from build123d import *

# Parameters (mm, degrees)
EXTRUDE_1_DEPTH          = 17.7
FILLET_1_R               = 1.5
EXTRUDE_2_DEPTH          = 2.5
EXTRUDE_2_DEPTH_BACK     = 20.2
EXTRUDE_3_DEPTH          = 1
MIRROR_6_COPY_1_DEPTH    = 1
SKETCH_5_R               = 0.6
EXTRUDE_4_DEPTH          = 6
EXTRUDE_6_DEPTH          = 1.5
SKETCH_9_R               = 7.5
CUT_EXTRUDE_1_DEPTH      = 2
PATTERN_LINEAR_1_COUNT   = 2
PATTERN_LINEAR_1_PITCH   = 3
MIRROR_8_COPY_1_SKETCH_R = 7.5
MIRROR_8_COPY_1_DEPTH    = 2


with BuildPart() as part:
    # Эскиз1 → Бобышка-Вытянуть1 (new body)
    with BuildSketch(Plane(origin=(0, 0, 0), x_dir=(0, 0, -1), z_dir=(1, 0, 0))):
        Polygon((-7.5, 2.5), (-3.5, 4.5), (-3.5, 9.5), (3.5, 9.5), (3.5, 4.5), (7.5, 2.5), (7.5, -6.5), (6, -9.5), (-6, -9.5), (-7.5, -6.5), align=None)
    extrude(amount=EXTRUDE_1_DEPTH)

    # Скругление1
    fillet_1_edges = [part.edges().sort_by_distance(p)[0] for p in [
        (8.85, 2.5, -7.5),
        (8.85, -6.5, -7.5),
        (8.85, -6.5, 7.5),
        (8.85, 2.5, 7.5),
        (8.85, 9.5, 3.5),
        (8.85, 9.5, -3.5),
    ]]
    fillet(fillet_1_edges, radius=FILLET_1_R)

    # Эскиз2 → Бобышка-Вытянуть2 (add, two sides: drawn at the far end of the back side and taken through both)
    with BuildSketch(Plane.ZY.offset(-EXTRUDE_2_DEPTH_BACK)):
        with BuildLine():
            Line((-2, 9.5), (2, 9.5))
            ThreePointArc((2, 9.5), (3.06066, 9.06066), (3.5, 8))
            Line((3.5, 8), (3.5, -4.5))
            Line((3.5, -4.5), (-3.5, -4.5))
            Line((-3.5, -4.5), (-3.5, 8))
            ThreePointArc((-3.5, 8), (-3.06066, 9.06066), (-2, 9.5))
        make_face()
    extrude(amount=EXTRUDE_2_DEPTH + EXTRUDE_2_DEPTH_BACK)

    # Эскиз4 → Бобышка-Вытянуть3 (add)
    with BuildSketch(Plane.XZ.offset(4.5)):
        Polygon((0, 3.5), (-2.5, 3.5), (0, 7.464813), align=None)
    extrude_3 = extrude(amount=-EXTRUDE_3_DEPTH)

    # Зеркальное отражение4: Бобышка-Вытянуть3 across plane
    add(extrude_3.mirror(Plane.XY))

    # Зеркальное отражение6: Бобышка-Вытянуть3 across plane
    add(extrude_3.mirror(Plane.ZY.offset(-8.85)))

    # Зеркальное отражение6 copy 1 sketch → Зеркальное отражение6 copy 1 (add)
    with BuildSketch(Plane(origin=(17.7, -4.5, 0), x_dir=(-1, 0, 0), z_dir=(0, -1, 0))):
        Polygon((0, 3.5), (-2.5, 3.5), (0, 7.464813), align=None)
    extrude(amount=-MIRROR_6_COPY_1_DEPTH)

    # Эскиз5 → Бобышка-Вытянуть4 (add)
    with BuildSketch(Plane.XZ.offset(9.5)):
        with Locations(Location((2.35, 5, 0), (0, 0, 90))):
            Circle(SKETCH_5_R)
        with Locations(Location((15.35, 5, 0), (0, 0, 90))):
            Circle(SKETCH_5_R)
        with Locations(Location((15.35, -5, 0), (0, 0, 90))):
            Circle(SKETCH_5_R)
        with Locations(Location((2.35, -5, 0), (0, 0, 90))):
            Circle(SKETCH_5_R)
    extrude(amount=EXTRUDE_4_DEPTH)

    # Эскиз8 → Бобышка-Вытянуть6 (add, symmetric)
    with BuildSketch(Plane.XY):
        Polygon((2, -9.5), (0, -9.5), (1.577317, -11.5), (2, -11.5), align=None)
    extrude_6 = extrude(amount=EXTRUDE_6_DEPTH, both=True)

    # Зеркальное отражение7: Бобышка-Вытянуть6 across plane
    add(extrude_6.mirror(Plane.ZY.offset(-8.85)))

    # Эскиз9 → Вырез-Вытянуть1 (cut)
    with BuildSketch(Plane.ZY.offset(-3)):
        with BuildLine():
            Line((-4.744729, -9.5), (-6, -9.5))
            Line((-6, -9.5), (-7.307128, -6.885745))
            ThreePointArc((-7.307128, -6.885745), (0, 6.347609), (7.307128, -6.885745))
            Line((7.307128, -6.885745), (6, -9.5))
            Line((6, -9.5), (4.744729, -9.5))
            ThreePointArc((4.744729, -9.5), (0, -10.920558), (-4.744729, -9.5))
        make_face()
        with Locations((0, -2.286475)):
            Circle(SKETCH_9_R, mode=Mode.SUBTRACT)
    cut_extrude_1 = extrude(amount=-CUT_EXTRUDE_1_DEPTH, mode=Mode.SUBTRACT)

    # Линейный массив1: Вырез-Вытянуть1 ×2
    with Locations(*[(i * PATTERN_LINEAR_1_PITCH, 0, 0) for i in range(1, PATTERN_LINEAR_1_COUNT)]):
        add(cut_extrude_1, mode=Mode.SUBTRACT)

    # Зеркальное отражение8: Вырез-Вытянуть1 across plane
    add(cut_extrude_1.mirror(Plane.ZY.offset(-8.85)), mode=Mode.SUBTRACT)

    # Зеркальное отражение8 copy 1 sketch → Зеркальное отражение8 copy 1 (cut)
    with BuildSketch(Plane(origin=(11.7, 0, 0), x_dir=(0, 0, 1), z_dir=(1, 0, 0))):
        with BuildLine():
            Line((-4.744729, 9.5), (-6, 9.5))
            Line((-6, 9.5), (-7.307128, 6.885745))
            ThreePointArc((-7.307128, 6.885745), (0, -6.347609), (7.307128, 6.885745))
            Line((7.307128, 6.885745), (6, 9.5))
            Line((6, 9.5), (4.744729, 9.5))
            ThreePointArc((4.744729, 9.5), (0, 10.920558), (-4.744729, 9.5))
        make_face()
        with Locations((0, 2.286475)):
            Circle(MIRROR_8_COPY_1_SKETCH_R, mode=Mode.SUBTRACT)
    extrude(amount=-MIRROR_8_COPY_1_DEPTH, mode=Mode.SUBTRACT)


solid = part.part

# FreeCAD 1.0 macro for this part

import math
import FreeCAD as App
import Part
import Sketcher

V = App.Vector
Q = App.Units.Quantity


def edges_at(feature, points):
    """Names of the edges that pass closest to the given points."""
    edges = feature.Shape.Edges
    near = lambda p: min(range(len(edges)), key=lambda i: edges[i].distToShape(Part.Vertex(*p))[0])
    return sorted({f"Edge{near(p) + 1}" for p in points})


def add_polygon(sketch, points):
    """Adds a closed chain of lines whose ends are joined by coincident constraints."""
    first, n = sketch.GeometryCount, len(points)
    for a, b in zip(points, points[1:] + points[:1]):
        sketch.addGeometry(Part.LineSegment(App.Vector(*a, 0), App.Vector(*b, 0)), False)
    for i in range(n):
        sketch.addConstraint(Sketcher.Constraint("Coincident", first + i, 2, first + (i + 1) % n, 1))

doc = App.newDocument("Part")
body = doc.addObject("PartDesign::Body", "Body")

# Sketch on YZ plane
sketch1 = doc.addObject("Sketcher::SketchObject", "Sketch")
body.addObject(sketch1)
sketch1.AttachmentSupport = (doc.YZ_Plane, [""])
sketch1.MapMode = "FlatFace"
add_polygon(sketch1, [(4.5, 3.5), (2.5, 7.5), (-6.5, 7.5), (-9.5, 6), (-9.5, -6), (-6.5, -7.5), (2.5, -7.5), (4.5, -3.5), (9.5, -3.5), (9.5, 3.5)])  # lines 0-9
sketch1.addConstraint([
    Sketcher.Constraint("Horizontal", 1),
    Sketcher.Constraint("Vertical", 3),
    Sketcher.Constraint("Horizontal", 5),
    Sketcher.Constraint("Horizontal", 7),
    Sketcher.Constraint("Vertical", 8),
    Sketcher.Constraint("Horizontal", 9),
    Sketcher.Constraint("Symmetric", 1, 2, 4, 2, -1),
    Sketcher.Constraint("Symmetric", 6, 2, 9, 2, -1),
    Sketcher.Constraint("Perpendicular", 0, 2),
    Sketcher.Constraint("Perpendicular", 4, 6),
    Sketcher.Constraint("Vertical", 0, 2, 5, 2),
    Sketcher.Constraint("DistanceX", 1, 2, 1, 1, Q("9 mm")),
    Sketcher.Constraint("DistanceX", 7, 1, 7, 2, Q("5 mm")),
    Sketcher.Constraint("DistanceY", 3, 2, 3, 1, Q("12 mm")),
    Sketcher.Constraint("DistanceY", 8, 1, 8, 2, Q("7 mm")),
    Sketcher.Constraint("DistanceX", 2, 2, 1, 2, Q("3 mm")),
    Sketcher.Constraint("DistanceY", 4, 2, 1, 2, Q("15 mm")),
    Sketcher.Constraint("DistanceX", -1, 1, 0, 2, Q("2.5 mm")),
])
pad1 = doc.addObject("PartDesign::Pad", "Pad")
body.addObject(pad1)
pad1.Profile = sketch1
pad1.Length = 17.7
doc.recompute()

fillet = doc.addObject("PartDesign::Fillet", "Fillet")
body.addObject(fillet)
fillet.Base = (pad1, edges_at(pad1, [
    (8.85, 2.5, -7.5),
    (8.85, -6.5, -7.5),
    (8.85, -6.5, 7.5),
    (8.85, 2.5, 7.5),
    (8.85, 9.5, 3.5),
    (8.85, 9.5, -3.5),
]))
fillet.Radius = 1.5

# Sketch on YZ plane
sketch2 = doc.addObject("Sketcher::SketchObject", "Sketch001")
body.addObject(sketch2)
sketch2.AttachmentSupport = (doc.YZ_Plane, [""])
sketch2.MapMode = "FlatFace"
sketch2.addGeometry([
    Part.LineSegment(V(9.5, 2, 0), V(9.5, -2, 0)),  # 0
    Part.ArcOfCircle(Part.Circle(V(8, -2, 0), V(0, 0, 1), 1.5), math.radians(-90), math.radians(0)),  # 1
    Part.LineSegment(V(8, -3.5, 0), V(-4.5, -3.5, 0)),  # 2
    Part.LineSegment(V(-4.5, -3.5, 0), V(-4.5, 3.5, 0)),  # 3
    Part.LineSegment(V(-4.5, 3.5, 0), V(8, 3.5, 0)),  # 4
    Part.ArcOfCircle(Part.Circle(V(8, 2, 0), V(0, 0, 1), 1.5), math.radians(0), math.radians(90)),  # 5
], False)
sketch2.addConstraint([
    Sketcher.Constraint("Tangent", 0, 2, 1, 2),
    Sketcher.Constraint("Tangent", 1, 1, 2, 1),
    Sketcher.Constraint("Coincident", 2, 2, 3, 1),
    Sketcher.Constraint("Coincident", 3, 2, 4, 1),
    Sketcher.Constraint("Tangent", 4, 2, 5, 2),
    Sketcher.Constraint("Tangent", 5, 1, 0, 1),
    Sketcher.Constraint("Vertical", 0),
    Sketcher.Constraint("Horizontal", 2),
    Sketcher.Constraint("Vertical", 3),
    Sketcher.Constraint("Horizontal", 4),
    Sketcher.Constraint("Equal", 1, 5),
    Sketcher.Constraint("Radius", 1, Q("1.500001 mm")),
    Sketcher.Constraint("DistanceY", 0, 2, 0, 1, Q("4 mm")),
    Sketcher.Constraint("DistanceX", 2, 2, 2, 1, Q("12.5 mm")),
    Sketcher.Constraint("DistanceX", -1, 1, 1, 3, Q("7.999999 mm")),
    Sketcher.Constraint("DistanceY", 1, 3, -1, 1, Q("1.999999 mm")),
])
pad2 = doc.addObject("PartDesign::Pad", "Pad001")
body.addObject(pad2)
pad2.Profile = sketch2
pad2.Type = "TwoLengths"
pad2.Length = 2.5
pad2.Length2 = 20.2
pad2.Reversed = True

# Sketch on XZ plane
sketch3 = doc.addObject("Sketcher::SketchObject", "Sketch002")
body.addObject(sketch3)
sketch3.AttachmentSupport = (doc.XZ_Plane, [""])
sketch3.MapMode = "FlatFace"
sketch3.AttachmentOffset = App.Placement(V(0, 0, 4.5), App.Rotation())
add_polygon(sketch3, [(-2.5, 3.5), (0, 3.5), (0, 7.5)])  # lines 0-2
sketch3.addConstraint([
    Sketcher.Constraint("Horizontal", 0),
    Sketcher.Constraint("Vertical", 1),
    Sketcher.Constraint("PointOnObject", 0, 2, -2),
    Sketcher.Constraint("DistanceX", 0, 1, 0, 2, Q("2.5 mm")),
    Sketcher.Constraint("DistanceY", -1, 1, 0, 2, Q("3.5 mm")),
    Sketcher.Constraint("Distance", 2, Q("4.687189 mm")),
])
pad3 = doc.addObject("PartDesign::Pad", "Pad002")
body.addObject(pad3)
pad3.Profile = sketch3
pad3.Length = 1
pad3.Reversed = True
doc.recompute()

mirrored = doc.addObject("PartDesign::Mirrored", "Mirrored")
body.addObject(mirrored)
mirrored.Originals = [pad3]
mirrored.MirrorPlane = (doc.XY_Plane, [""])
body.Tip = mirrored
doc.recompute()

datumplane = doc.addObject("PartDesign::Plane", "DatumPlane")
body.addObject(datumplane)
datumplane.AttachmentSupport = (doc.YZ_Plane, [""])
datumplane.MapMode = "FlatFace"
datumplane.AttachmentOffset = App.Placement(V(0, 0, 8.85), App.Rotation())
mirrored2 = doc.addObject("PartDesign::Mirrored", "Mirrored001")
body.addObject(mirrored2)
mirrored2.Originals = [pad3]
mirrored2.MirrorPlane = (datumplane, [""])
body.Tip = mirrored2

# Sketch on XZ plane
sketch4 = doc.addObject("Sketcher::SketchObject", "Sketch003")
body.addObject(sketch4)
sketch4.AttachmentSupport = (doc.XZ_Plane, [""])
sketch4.MapMode = "FlatFace"
sketch4.AttachmentOffset = App.Placement(V(0, 0, 4.5), App.Rotation())
add_polygon(sketch4, [(20.2, -3.5), (17.7, -3.5), (17.7, -7.5)])  # lines 0-2
sketch4.addConstraint([
    Sketcher.Constraint("Horizontal", 0),
    Sketcher.Constraint("Vertical", 1),
    Sketcher.Constraint("DistanceX", 0, 2, 0, 1, Q("2.5 mm")),
    Sketcher.Constraint("DistanceX", -1, 1, 0, 2, Q("17.7 mm")),
    Sketcher.Constraint("DistanceY", 0, 2, -1, 1, Q("3.5 mm")),
    Sketcher.Constraint("Distance", 2, Q("4.687189 mm")),
])
pad4 = doc.addObject("PartDesign::Pad", "Pad003")
body.addObject(pad4)
pad4.Profile = sketch4
pad4.Length = 1
pad4.Reversed = True

# Sketch on XZ plane
sketch5 = doc.addObject("Sketcher::SketchObject", "Sketch004")
body.addObject(sketch5)
sketch5.AttachmentSupport = (doc.XZ_Plane, [""])
sketch5.MapMode = "FlatFace"
sketch5.AttachmentOffset = App.Placement(V(0, 0, 9.5), App.Rotation())
sketch5.addGeometry([
    Part.Circle(V(2.4, 5, 0), V(0, 0, 1), 0.6),
    Part.Circle(V(15.3, 5, 0), V(0, 0, 1), 0.6),
    Part.Circle(V(15.3, -5, 0), V(0, 0, 1), 0.6),
    Part.Circle(V(2.4, -5, 0), V(0, 0, 1), 0.6),
], False)
sketch5.addConstraint([
    Sketcher.Constraint("Equal", 0, 1),
    Sketcher.Constraint("Equal", 1, 2),
    Sketcher.Constraint("Equal", 2, 3),
    Sketcher.Constraint("Symmetric", 1, 3, 2, 3, -1),
    Sketcher.Constraint("Symmetric", 0, 3, 3, 3, -1),
    Sketcher.Constraint("Horizontal", 0, 3, 1, 3),
    Sketcher.Constraint("Diameter", 0, Q("1.2 mm")),
    Sketcher.Constraint("DistanceY", -1, 1, 0, 3, Q("5 mm")),
    Sketcher.Constraint("DistanceX", 0, 3, 1, 3, Q("13 mm")),
    Sketcher.Constraint("DistanceX", -1, 1, 0, 3, Q("2.35 mm")),
])
pad5 = doc.addObject("PartDesign::Pad", "Pad004")
body.addObject(pad5)
pad5.Profile = sketch5
pad5.Length = 6

# Sketch on XY plane
sketch6 = doc.addObject("Sketcher::SketchObject", "Sketch005")
body.addObject(sketch6)
sketch6.AttachmentSupport = (doc.XY_Plane, [""])
sketch6.MapMode = "FlatFace"
add_polygon(sketch6, [(2, -9.5), (0, -9.5), (1.58, -11.5), (2, -11.5)])  # lines 0-3
sketch6.addConstraint([
    Sketcher.Constraint("Horizontal", 0),
    Sketcher.Constraint("Horizontal", 2),
    Sketcher.Constraint("Vertical", 3),
    Sketcher.Constraint("PointOnObject", 0, 2, -2),
    Sketcher.Constraint("Equal", 0, 3),
    Sketcher.Constraint("DistanceX", 0, 2, 0, 1, Q("2 mm")),
    Sketcher.Constraint("DistanceY", 0, 2, -1, 1, Q("9.5 mm")),
    Sketcher.Constraint("Distance", 1, Q("2.547141 mm")),
])
pad6 = doc.addObject("PartDesign::Pad", "Pad005")
body.addObject(pad6)
pad6.Profile = sketch6
pad6.Length = 3
pad6.Midplane = True
doc.recompute()

datumplane2 = doc.addObject("PartDesign::Plane", "DatumPlane001")
body.addObject(datumplane2)
datumplane2.AttachmentSupport = (doc.YZ_Plane, [""])
datumplane2.MapMode = "FlatFace"
datumplane2.AttachmentOffset = App.Placement(V(0, 0, 8.85), App.Rotation())
mirrored3 = doc.addObject("PartDesign::Mirrored", "Mirrored002")
body.addObject(mirrored3)
mirrored3.Originals = [pad6]
mirrored3.MirrorPlane = (datumplane2, [""])
body.Tip = mirrored3

# Sketch on YZ plane
sketch7 = doc.addObject("Sketcher::SketchObject", "Sketch006")
body.addObject(sketch7)
sketch7.AttachmentSupport = (doc.YZ_Plane, [""])
sketch7.MapMode = "FlatFace"
sketch7.AttachmentOffset = App.Placement(V(0, 0, 3), App.Rotation())
sketch7.addGeometry([
    Part.LineSegment(V(-9.5, -6, 0), V(-9.5, -4.7, 0)),  # 0
    Part.ArcOfCircle(Part.Circle(V(-2.3, 0, 0), V(0, 0, 1), 8.6), math.radians(147), math.radians(213)),  # 1
    Part.LineSegment(V(-9.5, 4.7, 0), V(-9.5, 6, 0)),  # 2
    Part.LineSegment(V(-9.5, 6, 0), V(-6.9, 7.3, 0)),  # 3
    Part.ArcOfCircle(Part.Circle(V(-2.3, 0, 0), V(0, 0, 1), 8.6), math.radians(-122), math.radians(122)),  # 4
    Part.LineSegment(V(-6.9, -7.3, 0), V(-9.5, -6, 0)),  # 5
    Part.Circle(V(-2.3, 0, 0), V(0, 0, 1), 7.5),  # 6
], False)
sketch7.addConstraint([
    Sketcher.Constraint("Coincident", 0, 2, 1, 2),
    Sketcher.Constraint("Coincident", 1, 1, 2, 1),
    Sketcher.Constraint("Coincident", 2, 2, 3, 1),
    Sketcher.Constraint("Coincident", 3, 2, 4, 2),
    Sketcher.Constraint("Coincident", 4, 1, 5, 1),
    Sketcher.Constraint("Coincident", 5, 2, 0, 1),
    Sketcher.Constraint("Vertical", 0),
    Sketcher.Constraint("Vertical", 2),
    Sketcher.Constraint("Coincident", 4, 3, 1, 3),
    Sketcher.Constraint("Coincident", 6, 3, 1, 3),
    Sketcher.Constraint("Equal", 1, 4),
    Sketcher.Constraint("Symmetric", 0, 2, 1, 1, -1),
    Sketcher.Constraint("Vertical", 3, 2, 4, 1),
    Sketcher.Constraint("Equal", 0, 2),
    Sketcher.Constraint("Diameter", 6, Q("15 mm")),
    Sketcher.Constraint("DistanceY", -1, 1, 2, 2, Q("6 mm")),
    Sketcher.Constraint("DistanceX", 0, 2, -1, 1, Q("9.5 mm")),
    Sketcher.Constraint("Radius", 1, Q("8.634085 mm")),
    Sketcher.Constraint("DistanceY", 0, 1, 0, 2, Q("1.255271 mm")),
    Sketcher.Constraint("DistanceY", 1, 1, 3, 2, Q("2.562399 mm")),
])
pocket1 = doc.addObject("PartDesign::Pocket", "Pocket")
body.addObject(pocket1)
pocket1.Profile = sketch7
pocket1.Length = 2
pocket1.Reversed = True
doc.recompute()

linearpattern = doc.addObject("PartDesign::LinearPattern", "LinearPattern")
body.addObject(linearpattern)
linearpattern.Originals = [pocket1]
linearpattern.Direction = (doc.X_Axis, [""])
linearpattern.Mode = "offset"
linearpattern.Offset = 3
linearpattern.Occurrences = 2
body.Tip = linearpattern
doc.recompute()

datumplane3 = doc.addObject("PartDesign::Plane", "DatumPlane002")
body.addObject(datumplane3)
datumplane3.AttachmentSupport = (doc.YZ_Plane, [""])
datumplane3.MapMode = "FlatFace"
datumplane3.AttachmentOffset = App.Placement(V(0, 0, 8.85), App.Rotation())
mirrored4 = doc.addObject("PartDesign::Mirrored", "Mirrored003")
body.addObject(mirrored4)
mirrored4.Originals = [pocket1]
mirrored4.MirrorPlane = (datumplane3, [""])
body.Tip = mirrored4

# Sketch on YZ plane
sketch8 = doc.addObject("Sketcher::SketchObject", "Sketch007")
body.addObject(sketch8)
sketch8.AttachmentSupport = (doc.YZ_Plane, [""])
sketch8.MapMode = "FlatFace"
sketch8.AttachmentOffset = App.Placement(V(0, 0, 11.7), App.Rotation())
sketch8.addGeometry([
    Part.LineSegment(V(-9.5, -4.7, 0), V(-9.5, -6, 0)),  # 0
    Part.LineSegment(V(-9.5, -6, 0), V(-6.9, -7.3, 0)),  # 1
    Part.ArcOfCircle(Part.Circle(V(-2.3, 0, 0), V(0, 0, 1), 8.6), math.radians(-122), math.radians(122)),  # 2
    Part.LineSegment(V(-6.9, 7.3, 0), V(-9.5, 6, 0)),  # 3
    Part.LineSegment(V(-9.5, 6, 0), V(-9.5, 4.7, 0)),  # 4
    Part.ArcOfCircle(Part.Circle(V(-2.3, 0, 0), V(0, 0, 1), 8.6), math.radians(147), math.radians(213)),  # 5
    Part.Circle(V(-2.3, 0, 0), V(0, 0, 1), 7.5),  # 6
], False)
sketch8.addConstraint([
    Sketcher.Constraint("Coincident", 0, 2, 1, 1),
    Sketcher.Constraint("Coincident", 1, 2, 2, 1),
    Sketcher.Constraint("Coincident", 2, 2, 3, 1),
    Sketcher.Constraint("Coincident", 3, 2, 4, 1),
    Sketcher.Constraint("Coincident", 4, 2, 5, 1),
    Sketcher.Constraint("Coincident", 5, 2, 0, 1),
    Sketcher.Constraint("Vertical", 0),
    Sketcher.Constraint("Vertical", 4),
    Sketcher.Constraint("Coincident", 5, 3, 2, 3),
    Sketcher.Constraint("Coincident", 6, 3, 2, 3),
    Sketcher.Constraint("Equal", 2, 5),
    Sketcher.Constraint("Symmetric", 1, 2, 2, 2, -1),
    Sketcher.Constraint("Symmetric", 0, 2, 3, 2, -1),
    Sketcher.Constraint("Diameter", 6, Q("15 mm")),
    Sketcher.Constraint("DistanceY", 0, 2, -1, 1, Q("6 mm")),
    Sketcher.Constraint("DistanceX", 0, 2, -1, 1, Q("9.5 mm")),
    Sketcher.Constraint("Radius", 2, Q("8.634084 mm")),
    Sketcher.Constraint("DistanceY", 0, 2, 0, 1, Q("1.255271 mm")),
    Sketcher.Constraint("DistanceY", 4, 2, 2, 2, Q("2.562399 mm")),
])
pocket2 = doc.addObject("PartDesign::Pocket", "Pocket001")
body.addObject(pocket2)
pocket2.Profile = sketch8
pocket2.Length = 2

doc.recompute()
